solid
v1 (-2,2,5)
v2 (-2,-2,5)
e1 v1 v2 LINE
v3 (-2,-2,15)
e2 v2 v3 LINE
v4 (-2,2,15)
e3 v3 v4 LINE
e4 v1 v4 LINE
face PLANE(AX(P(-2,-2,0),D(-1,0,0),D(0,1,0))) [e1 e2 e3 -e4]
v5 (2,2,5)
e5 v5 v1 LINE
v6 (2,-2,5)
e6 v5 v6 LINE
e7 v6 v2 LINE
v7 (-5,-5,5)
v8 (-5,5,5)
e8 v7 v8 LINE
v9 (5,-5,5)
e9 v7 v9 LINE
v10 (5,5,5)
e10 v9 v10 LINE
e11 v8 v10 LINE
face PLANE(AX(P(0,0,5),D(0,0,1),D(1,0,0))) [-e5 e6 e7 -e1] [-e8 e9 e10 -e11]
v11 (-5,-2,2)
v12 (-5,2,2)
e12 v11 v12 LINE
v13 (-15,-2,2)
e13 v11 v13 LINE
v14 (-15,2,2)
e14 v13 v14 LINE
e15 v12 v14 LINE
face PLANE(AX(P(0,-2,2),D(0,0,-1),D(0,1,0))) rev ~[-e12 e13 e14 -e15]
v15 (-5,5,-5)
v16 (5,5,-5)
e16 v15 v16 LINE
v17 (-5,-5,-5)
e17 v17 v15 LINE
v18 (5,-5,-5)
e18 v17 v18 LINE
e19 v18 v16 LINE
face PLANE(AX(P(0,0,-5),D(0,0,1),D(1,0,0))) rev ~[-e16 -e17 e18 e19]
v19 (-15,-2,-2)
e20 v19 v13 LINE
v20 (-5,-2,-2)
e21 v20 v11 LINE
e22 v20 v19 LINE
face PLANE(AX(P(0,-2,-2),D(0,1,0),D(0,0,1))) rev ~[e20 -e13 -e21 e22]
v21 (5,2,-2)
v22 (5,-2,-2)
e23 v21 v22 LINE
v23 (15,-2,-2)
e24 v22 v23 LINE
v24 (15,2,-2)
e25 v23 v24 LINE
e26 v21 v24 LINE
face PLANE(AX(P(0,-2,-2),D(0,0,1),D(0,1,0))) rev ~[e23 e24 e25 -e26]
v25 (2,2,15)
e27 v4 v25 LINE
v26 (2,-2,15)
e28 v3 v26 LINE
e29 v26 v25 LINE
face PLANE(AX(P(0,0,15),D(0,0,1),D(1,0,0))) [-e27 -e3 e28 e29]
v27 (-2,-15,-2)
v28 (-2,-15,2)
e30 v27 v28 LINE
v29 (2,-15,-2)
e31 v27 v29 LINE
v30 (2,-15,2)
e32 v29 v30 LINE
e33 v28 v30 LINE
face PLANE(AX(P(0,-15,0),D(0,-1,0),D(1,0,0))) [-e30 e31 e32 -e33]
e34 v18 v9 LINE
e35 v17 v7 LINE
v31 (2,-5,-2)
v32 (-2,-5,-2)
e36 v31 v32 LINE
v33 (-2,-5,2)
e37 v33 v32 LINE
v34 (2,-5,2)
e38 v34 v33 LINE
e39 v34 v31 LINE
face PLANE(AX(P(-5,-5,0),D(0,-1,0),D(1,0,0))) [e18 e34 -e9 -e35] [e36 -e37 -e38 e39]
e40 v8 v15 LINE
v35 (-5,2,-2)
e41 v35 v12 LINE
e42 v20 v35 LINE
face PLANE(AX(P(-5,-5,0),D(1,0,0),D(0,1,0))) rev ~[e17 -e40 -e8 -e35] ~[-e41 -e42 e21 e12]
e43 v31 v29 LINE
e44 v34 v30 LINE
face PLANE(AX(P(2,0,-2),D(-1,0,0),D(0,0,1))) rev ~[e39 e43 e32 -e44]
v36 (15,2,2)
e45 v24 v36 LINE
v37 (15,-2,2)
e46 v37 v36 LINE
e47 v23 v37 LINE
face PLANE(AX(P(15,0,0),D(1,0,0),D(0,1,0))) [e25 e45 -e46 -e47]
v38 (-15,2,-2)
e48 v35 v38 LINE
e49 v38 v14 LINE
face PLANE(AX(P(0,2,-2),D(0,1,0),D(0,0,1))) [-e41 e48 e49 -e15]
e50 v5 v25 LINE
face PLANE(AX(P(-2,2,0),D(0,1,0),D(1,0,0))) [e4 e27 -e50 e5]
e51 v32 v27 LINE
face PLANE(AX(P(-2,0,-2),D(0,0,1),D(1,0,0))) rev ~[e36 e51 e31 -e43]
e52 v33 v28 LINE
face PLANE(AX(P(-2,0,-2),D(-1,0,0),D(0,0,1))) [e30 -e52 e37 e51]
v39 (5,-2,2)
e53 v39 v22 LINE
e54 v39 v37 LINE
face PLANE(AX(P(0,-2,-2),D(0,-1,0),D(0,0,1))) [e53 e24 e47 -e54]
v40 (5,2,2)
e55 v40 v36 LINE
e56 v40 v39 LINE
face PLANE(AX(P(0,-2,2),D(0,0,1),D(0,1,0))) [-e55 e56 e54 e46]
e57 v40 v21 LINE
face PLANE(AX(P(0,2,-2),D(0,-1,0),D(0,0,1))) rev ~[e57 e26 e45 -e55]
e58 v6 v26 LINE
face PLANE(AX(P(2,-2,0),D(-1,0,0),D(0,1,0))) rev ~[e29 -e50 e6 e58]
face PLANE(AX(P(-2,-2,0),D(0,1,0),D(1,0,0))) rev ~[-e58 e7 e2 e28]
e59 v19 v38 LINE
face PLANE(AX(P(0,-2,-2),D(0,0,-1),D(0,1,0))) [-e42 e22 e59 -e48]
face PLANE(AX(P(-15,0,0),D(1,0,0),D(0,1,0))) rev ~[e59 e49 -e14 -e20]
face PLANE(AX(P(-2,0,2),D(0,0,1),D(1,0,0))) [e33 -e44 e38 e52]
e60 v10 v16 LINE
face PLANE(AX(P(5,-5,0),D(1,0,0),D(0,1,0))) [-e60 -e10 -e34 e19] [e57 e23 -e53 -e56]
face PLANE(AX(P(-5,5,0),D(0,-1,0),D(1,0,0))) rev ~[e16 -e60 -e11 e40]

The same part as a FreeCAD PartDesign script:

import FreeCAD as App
import Part
import Sketcher
from FreeCAD import Vector
Q = App.Units.Quantity


def add_polygon(sketch, points):
    """Adds a closed chain of lines whose ends are joined by coincident constraints."""
    first, n = sketch.GeometryCount, len(points)
    for a, b in zip(points, points[1:] + points[:1]):
        sketch.addGeometry(Part.LineSegment(App.Vector(*a, 0), App.Vector(*b, 0)), False)
    for i in range(n):
        sketch.addConstraint(Sketcher.Constraint("Coincident", first + i, 2, first + (i + 1) % n, 1))

doc = App.newDocument("Part")
body = doc.addObject("PartDesign::Body", "Body")

sketch1 = body.newObject("Sketcher::SketchObject", "Sketch")
sketch1.AttachmentSupport = (doc.getObject("XY_Plane"), [""])
sketch1.MapMode = "FlatFace"
add_polygon(sketch1, [(-5, 5), (-5, -5), (5, -5), (5, 5)])
sketch1.addConstraint(Sketcher.Constraint("Vertical", 0))
sketch1.addConstraint(Sketcher.Constraint("Horizontal", 1))
sketch1.addConstraint(Sketcher.Constraint("Vertical", 2))
sketch1.addConstraint(Sketcher.Constraint("Horizontal", 3))
sketch1.addConstraint(Sketcher.Constraint("Symmetric", 0, 2, 2, 2, -1, 1))
sketch1.addConstraint(Sketcher.Constraint("Equal", 3, 0))
sketch1.addConstraint(Sketcher.Constraint("DistanceX", 1, 1, 1, 2, Q("10 mm")))
pad1 = body.newObject("PartDesign::Pad", "Pad")
pad1.Profile = sketch1
pad1.Length = 10
pad1.Midplane = True

sketch2 = body.newObject("Sketcher::SketchObject", "Sketch001")
sketch2.AttachmentSupport = (doc.getObject("XY_Plane"), [""])
sketch2.MapMode = "FlatFace"
add_polygon(sketch2, [(-2, 2), (-2, -2), (2, -2), (2, 2)])
sketch2.addConstraint(Sketcher.Constraint("Vertical", 0))
sketch2.addConstraint(Sketcher.Constraint("Horizontal", 1))
sketch2.addConstraint(Sketcher.Constraint("Vertical", 2))
sketch2.addConstraint(Sketcher.Constraint("Horizontal", 3))
sketch2.addConstraint(Sketcher.Constraint("Symmetric", 0, 2, 2, 2, -1, 1))
sketch2.addConstraint(Sketcher.Constraint("Equal", 3, 0))
sketch2.addConstraint(Sketcher.Constraint("DistanceX", 1, 1, 1, 2, Q("4 mm")))
pad2 = body.newObject("PartDesign::Pad", "Pad001")
pad2.Profile = sketch2
pad2.Length = 15

sketch3 = body.newObject("Sketcher::SketchObject", "Sketch002")
sketch3.AttachmentSupport = (doc.getObject("XZ_Plane"), [""])
sketch3.MapMode = "FlatFace"
add_polygon(sketch3, [(-2, 2), (-2, -2), (2, -2), (2, 2)])
sketch3.addConstraint(Sketcher.Constraint("Vertical", 0))
sketch3.addConstraint(Sketcher.Constraint("Horizontal", 1))
sketch3.addConstraint(Sketcher.Constraint("Vertical", 2))
sketch3.addConstraint(Sketcher.Constraint("Horizontal", 3))
sketch3.addConstraint(Sketcher.Constraint("Symmetric", 0, 2, 2, 2, -1, 1))
sketch3.addConstraint(Sketcher.Constraint("Equal", 3, 0))
sketch3.addConstraint(Sketcher.Constraint("DistanceX", 1, 1, 1, 2, Q("4 mm")))
pad3 = body.newObject("PartDesign::Pad", "Pad002")
pad3.Profile = sketch3
pad3.Length = 15

sketch4 = body.newObject("Sketcher::SketchObject", "Sketch003")
sketch4.AttachmentSupport = (doc.getObject("YZ_Plane"), [""])
sketch4.MapMode = "FlatFace"
add_polygon(sketch4, [(-2, 2), (-2, -2), (2, -2), (2, 2)])
sketch4.addConstraint(Sketcher.Constraint("Vertical", 0))
sketch4.addConstraint(Sketcher.Constraint("Horizontal", 1))
sketch4.addConstraint(Sketcher.Constraint("Vertical", 2))
sketch4.addConstraint(Sketcher.Constraint("Horizontal", 3))
sketch4.addConstraint(Sketcher.Constraint("Symmetric", 0, 2, 2, 2, -1, 1))
sketch4.addConstraint(Sketcher.Constraint("Equal", 3, 0))
sketch4.addConstraint(Sketcher.Constraint("DistanceX", 1, 1, 1, 2, Q("4 mm")))
pad4 = body.newObject("PartDesign::Pad", "Pad003")
pad4.Profile = sketch4
pad4.Length = 15

sketch5 = body.newObject("Sketcher::SketchObject", "Sketch004")
sketch5.AttachmentSupport = (doc.getObject("YZ_Plane"), [""])
sketch5.MapMode = "FlatFace"
add_polygon(sketch5, [(-2, 2), (-2, -2), (2, -2), (2, 2)])
sketch5.addConstraint(Sketcher.Constraint("Vertical", 0))
sketch5.addConstraint(Sketcher.Constraint("Horizontal", 1))
sketch5.addConstraint(Sketcher.Constraint("Vertical", 2))
sketch5.addConstraint(Sketcher.Constraint("Horizontal", 3))
sketch5.addConstraint(Sketcher.Constraint("Symmetric", 0, 2, 2, 2, -1, 1))
sketch5.addConstraint(Sketcher.Constraint("Equal", 3, 0))
sketch5.addConstraint(Sketcher.Constraint("DistanceX", 1, 1, 1, 2, Q("4 mm")))
pad5 = body.newObject("PartDesign::Pad", "Pad004")
pad5.Profile = sketch5
pad5.Length = 15
pad5.Reversed = True

doc.recompute()
